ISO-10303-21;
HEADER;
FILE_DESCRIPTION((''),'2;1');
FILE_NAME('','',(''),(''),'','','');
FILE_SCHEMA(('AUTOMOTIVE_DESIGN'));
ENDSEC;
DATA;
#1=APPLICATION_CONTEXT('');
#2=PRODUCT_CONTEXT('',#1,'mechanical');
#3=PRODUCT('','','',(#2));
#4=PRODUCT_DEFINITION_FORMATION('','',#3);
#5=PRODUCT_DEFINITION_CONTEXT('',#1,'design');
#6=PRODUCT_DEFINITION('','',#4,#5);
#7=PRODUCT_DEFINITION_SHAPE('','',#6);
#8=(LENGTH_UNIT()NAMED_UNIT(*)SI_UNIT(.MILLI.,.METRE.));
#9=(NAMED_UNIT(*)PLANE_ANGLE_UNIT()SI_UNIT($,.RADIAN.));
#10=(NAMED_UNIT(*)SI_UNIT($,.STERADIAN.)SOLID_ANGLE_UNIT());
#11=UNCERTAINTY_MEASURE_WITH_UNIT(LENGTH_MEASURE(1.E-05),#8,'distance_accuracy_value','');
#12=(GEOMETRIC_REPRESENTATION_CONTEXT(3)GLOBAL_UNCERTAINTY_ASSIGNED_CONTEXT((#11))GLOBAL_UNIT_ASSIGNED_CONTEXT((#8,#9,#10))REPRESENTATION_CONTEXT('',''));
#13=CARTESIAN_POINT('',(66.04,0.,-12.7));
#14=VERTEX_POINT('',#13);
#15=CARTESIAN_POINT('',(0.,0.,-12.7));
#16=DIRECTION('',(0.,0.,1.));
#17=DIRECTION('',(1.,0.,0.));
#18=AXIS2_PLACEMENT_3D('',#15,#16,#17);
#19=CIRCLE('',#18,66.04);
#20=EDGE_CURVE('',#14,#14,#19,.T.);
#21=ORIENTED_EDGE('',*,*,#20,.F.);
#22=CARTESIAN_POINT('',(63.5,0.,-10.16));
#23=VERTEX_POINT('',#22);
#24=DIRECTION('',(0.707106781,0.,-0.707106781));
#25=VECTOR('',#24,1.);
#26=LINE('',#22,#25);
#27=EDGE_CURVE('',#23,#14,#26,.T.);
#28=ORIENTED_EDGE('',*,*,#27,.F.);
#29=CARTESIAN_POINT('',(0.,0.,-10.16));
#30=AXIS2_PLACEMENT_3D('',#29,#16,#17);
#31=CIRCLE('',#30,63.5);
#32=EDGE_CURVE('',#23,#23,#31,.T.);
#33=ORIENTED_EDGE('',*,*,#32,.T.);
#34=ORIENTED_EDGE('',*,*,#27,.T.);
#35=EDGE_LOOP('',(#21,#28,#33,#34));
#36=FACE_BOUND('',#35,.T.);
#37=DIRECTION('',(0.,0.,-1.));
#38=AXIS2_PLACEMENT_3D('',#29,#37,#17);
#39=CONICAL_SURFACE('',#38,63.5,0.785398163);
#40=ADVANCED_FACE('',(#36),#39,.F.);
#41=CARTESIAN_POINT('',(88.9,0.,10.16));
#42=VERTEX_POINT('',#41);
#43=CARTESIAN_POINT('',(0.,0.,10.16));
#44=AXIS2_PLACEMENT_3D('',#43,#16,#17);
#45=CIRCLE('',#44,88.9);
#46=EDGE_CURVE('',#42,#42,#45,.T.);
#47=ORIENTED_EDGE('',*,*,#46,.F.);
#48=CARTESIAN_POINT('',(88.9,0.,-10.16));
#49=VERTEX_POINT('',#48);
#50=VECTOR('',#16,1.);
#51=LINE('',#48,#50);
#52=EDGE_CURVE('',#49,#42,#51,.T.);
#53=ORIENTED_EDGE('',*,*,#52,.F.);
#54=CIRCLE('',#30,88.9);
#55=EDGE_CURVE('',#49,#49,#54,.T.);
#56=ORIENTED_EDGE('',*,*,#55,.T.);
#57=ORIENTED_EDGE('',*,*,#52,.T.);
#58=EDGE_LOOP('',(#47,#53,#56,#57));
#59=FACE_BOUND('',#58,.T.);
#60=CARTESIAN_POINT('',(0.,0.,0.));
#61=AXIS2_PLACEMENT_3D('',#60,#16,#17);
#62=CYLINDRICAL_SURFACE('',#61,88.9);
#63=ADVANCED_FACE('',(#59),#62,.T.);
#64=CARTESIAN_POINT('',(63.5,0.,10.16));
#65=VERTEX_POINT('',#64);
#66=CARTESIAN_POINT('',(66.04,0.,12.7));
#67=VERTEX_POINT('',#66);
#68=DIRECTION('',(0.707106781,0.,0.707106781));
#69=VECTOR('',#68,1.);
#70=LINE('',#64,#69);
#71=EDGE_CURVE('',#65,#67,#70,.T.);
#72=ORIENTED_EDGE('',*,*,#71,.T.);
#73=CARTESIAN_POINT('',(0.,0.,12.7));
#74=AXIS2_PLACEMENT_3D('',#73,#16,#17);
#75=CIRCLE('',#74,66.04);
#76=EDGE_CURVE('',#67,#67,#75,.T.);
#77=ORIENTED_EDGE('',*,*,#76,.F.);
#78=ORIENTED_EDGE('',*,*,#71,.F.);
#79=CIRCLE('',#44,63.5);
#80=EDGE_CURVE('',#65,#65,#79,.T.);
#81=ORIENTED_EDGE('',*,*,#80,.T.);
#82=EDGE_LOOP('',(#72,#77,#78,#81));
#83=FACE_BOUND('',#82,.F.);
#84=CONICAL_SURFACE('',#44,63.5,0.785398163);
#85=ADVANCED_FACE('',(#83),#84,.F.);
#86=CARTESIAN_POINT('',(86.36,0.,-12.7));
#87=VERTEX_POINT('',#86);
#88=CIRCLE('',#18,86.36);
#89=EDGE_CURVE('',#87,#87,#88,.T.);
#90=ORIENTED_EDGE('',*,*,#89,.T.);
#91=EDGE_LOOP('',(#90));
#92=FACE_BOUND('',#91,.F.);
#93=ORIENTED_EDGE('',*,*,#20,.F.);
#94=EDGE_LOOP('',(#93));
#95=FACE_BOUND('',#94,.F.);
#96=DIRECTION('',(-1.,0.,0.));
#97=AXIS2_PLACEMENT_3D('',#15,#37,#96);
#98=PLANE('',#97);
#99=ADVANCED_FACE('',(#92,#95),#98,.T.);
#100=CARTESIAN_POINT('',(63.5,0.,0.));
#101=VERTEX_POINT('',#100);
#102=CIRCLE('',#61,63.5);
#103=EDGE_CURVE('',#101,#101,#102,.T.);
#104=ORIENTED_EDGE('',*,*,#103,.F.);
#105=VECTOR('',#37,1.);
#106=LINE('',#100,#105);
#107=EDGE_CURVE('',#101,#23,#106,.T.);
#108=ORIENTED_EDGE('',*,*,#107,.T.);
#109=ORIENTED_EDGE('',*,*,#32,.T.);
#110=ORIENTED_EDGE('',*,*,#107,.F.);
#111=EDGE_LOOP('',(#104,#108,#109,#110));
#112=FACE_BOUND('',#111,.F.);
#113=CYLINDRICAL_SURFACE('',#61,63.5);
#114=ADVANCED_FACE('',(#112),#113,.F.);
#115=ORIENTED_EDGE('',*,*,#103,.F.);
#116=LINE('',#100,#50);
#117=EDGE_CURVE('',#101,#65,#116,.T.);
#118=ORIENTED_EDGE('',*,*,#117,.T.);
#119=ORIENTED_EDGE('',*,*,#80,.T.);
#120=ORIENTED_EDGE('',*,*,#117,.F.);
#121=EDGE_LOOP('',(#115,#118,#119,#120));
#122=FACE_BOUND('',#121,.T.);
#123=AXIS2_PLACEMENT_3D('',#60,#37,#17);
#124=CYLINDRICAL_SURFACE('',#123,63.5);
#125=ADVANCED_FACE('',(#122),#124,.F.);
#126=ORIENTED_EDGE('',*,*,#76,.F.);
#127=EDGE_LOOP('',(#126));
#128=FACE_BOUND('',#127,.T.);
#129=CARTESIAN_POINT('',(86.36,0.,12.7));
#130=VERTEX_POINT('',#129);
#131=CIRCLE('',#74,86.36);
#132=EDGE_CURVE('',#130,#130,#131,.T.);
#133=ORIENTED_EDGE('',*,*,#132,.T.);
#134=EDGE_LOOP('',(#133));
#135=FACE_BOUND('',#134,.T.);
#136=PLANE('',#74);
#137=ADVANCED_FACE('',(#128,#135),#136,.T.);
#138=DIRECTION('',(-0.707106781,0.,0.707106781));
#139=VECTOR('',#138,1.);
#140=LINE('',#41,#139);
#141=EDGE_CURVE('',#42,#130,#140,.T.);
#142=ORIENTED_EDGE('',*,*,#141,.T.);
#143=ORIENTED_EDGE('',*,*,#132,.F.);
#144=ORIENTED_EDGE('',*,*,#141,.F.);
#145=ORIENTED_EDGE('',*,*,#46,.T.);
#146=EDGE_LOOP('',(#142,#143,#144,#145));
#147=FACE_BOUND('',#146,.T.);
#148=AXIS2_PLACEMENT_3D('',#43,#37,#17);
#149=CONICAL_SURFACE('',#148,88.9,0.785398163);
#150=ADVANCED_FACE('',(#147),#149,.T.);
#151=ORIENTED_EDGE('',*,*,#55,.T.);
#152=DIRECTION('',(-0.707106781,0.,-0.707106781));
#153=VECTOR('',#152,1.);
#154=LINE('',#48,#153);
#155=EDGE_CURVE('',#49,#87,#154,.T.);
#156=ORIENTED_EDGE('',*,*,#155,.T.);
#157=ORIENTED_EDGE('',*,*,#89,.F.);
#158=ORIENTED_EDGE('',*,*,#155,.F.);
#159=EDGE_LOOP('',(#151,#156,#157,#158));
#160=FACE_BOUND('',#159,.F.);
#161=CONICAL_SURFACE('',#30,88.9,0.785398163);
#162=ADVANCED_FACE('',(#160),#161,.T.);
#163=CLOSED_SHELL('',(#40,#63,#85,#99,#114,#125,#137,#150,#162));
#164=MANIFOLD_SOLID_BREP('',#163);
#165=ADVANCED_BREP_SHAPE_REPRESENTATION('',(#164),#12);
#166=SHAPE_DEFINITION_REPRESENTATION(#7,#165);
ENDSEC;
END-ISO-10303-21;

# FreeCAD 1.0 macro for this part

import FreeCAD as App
import Part
import Sketcher
from FreeCAD import Vector
Q = App.Units.Quantity


def edges_at(feature, points):
    """Names of the edges that pass closest to the given points."""
    edges = feature.Shape.Edges
    near = lambda p: min(range(len(edges)), key=lambda i: edges[i].distToShape(Part.Vertex(*p))[0])
    return sorted({f"Edge{near(p) + 1}" for p in points})

doc = App.newDocument("Part")
body = doc.addObject("PartDesign::Body", "Body")

sketch1 = body.newObject("Sketcher::SketchObject", "Sketch")
sketch1.AttachmentSupport = (doc.getObject("XY_Plane"), [""])
sketch1.MapMode = "FlatFace"
sketch1.addGeometry([
    Part.Circle(Vector(0, 0, 0), Vector(0, 0, 1), 89),
    Part.Circle(Vector(0, 0, 0), Vector(0, 0, 1), 64),
], False)
sketch1.addConstraint([
    Sketcher.Constraint("Coincident", 0, 3, -1, 1),
    Sketcher.Constraint("Coincident", 1, 3, -1, 1),
    Sketcher.Constraint("Diameter", 0, Q("7 in")),
    Sketcher.Constraint("Diameter", 1, Q("5 in")),
])
pad1 = body.newObject("PartDesign::Pad", "Pad")
pad1.Profile = sketch1
pad1.Length = Q("0.5 in")
doc.recompute()

chamfer = body.newObject("PartDesign::Chamfer", "Chamfer")
chamfer.Base = (pad1, edges_at(pad1, [(-88.9, 0, 12.7), (-63.5, 0, 12.7)]))
chamfer.Size = Q("0.1 in")
body2 = doc.addObject("PartDesign::Body", "Body001")
doc.recompute()

body2.BaseFeature = body
doc.recompute()

mirroring = doc.addObject("Part::Mirroring", "Mirroring")
mirroring.Source = body
mirroring.Base = Vector(0, 0, 0)
mirroring.Normal = Vector(0, 0, -1)
body3 = doc.addObject("PartDesign::Body", "Body002")
body3.BaseFeature = mirroring
boolean = body2.newObject("PartDesign::Boolean", "Boolean")
boolean.Type = "Fuse"
boolean.addObjects([body3])
doc.recompute()
mirroring.Visibility = False

doc.recompute()
